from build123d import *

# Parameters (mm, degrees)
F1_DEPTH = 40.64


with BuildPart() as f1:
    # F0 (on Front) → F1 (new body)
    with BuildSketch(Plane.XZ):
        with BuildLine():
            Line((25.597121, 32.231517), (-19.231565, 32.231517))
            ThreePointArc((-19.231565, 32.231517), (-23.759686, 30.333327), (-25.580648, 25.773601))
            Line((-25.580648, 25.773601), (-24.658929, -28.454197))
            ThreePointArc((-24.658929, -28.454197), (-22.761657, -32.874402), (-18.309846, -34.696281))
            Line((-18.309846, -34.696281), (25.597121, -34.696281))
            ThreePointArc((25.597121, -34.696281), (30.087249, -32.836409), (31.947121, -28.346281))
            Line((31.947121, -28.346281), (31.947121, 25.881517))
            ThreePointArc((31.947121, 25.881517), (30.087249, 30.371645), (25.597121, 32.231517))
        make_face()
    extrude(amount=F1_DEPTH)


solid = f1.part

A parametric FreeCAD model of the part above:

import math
import FreeCAD as App
import Part
import Sketcher
Q = App.Units.Quantity

doc = App.newDocument("Part")
body = doc.addObject("PartDesign::Body", "Body")

sketch1 = doc.addObject("Sketcher::SketchObject", "Sketch")
body.addObject(sketch1)
sketch1.AttachmentSupport = (doc.XZ_Plane, [""])
sketch1.MapMode = "FlatFace"
sketch1.addGeometry([
    Part.LineSegment(App.Vector(25.597121, 32.231517, 0), App.Vector(-19.231565, 32.231517, 0)),
    Part.ArcOfCircle(Part.Circle(App.Vector(-19.231563, 25.881515, 0), App.Vector(0, 0, 1), 6.350002), math.radians(90.000014), math.radians(180.973754)),
    Part.LineSegment(App.Vector(-25.580648, 25.773601, 0), App.Vector(-24.658929, -28.454197, 0)),
    Part.ArcOfCircle(Part.Circle(App.Vector(-18.309846, -28.346281, 0), App.Vector(0, 0, 1), 6.35), math.radians(-179.026232), math.radians(-89.999999)),
    Part.LineSegment(App.Vector(-18.309846, -34.696281, 0), App.Vector(25.597121, -34.696281, 0)),
    Part.ArcOfCircle(Part.Circle(App.Vector(25.597121, -28.346281, 0), App.Vector(0, 0, 1), 6.35), math.radians(-89.999998), math.radians(-0.000002)),
    Part.LineSegment(App.Vector(31.947121, -28.346281, 0), App.Vector(31.947121, 25.881517, 0)),
    Part.ArcOfCircle(Part.Circle(App.Vector(25.597121, 25.881517, 0), App.Vector(0, 0, 1), 6.35), math.radians(0.000002), math.radians(89.999998)),
], False)
sketch1.addConstraint([
    Sketcher.Constraint("Tangent", 0, 2, 1, 1),
    Sketcher.Constraint("Tangent", 1, 2, 2, 1),
    Sketcher.Constraint("Tangent", 2, 2, 3, 1),
    Sketcher.Constraint("Tangent", 3, 2, 4, 1),
    Sketcher.Constraint("Tangent", 4, 2, 5, 1),
    Sketcher.Constraint("Tangent", 5, 2, 6, 1),
    Sketcher.Constraint("Tangent", 6, 2, 7, 1),
    Sketcher.Constraint("Tangent", 7, 2, 0, 1),
    Sketcher.Constraint("Horizontal", 0),
    Sketcher.Constraint("Horizontal", 4),
    Sketcher.Constraint("Vertical", 6),
    Sketcher.Constraint("Equal", 1, 3),
    Sketcher.Constraint("Equal", 3, 5),
    Sketcher.Constraint("Equal", 5, 7),
    Sketcher.Constraint("Radius", 1, Q("0.2500001 in")),
    Sketcher.Constraint("DistanceY", -1, 1, 1, 2, Q("25.773601 mm")),
    Sketcher.Constraint("DistanceY", 3, 3, 0, 2, Q("60.577798 mm")),
    Sketcher.Constraint("DistanceX", 1, 2, 3, 3, Q("7.270802 mm")),
    Sketcher.Constraint("DistanceX", 0, 2, 0, 1, Q("44.828686 mm")),
    Sketcher.Constraint("DistanceX", -1, 1, 5, 3, Q("25.597121 mm")),
])
pad1 = doc.addObject("PartDesign::Pad", "Pad")
body.addObject(pad1)
pad1.Profile = sketch1
pad1.Length = Q("1.6 in")

doc.recompute()
